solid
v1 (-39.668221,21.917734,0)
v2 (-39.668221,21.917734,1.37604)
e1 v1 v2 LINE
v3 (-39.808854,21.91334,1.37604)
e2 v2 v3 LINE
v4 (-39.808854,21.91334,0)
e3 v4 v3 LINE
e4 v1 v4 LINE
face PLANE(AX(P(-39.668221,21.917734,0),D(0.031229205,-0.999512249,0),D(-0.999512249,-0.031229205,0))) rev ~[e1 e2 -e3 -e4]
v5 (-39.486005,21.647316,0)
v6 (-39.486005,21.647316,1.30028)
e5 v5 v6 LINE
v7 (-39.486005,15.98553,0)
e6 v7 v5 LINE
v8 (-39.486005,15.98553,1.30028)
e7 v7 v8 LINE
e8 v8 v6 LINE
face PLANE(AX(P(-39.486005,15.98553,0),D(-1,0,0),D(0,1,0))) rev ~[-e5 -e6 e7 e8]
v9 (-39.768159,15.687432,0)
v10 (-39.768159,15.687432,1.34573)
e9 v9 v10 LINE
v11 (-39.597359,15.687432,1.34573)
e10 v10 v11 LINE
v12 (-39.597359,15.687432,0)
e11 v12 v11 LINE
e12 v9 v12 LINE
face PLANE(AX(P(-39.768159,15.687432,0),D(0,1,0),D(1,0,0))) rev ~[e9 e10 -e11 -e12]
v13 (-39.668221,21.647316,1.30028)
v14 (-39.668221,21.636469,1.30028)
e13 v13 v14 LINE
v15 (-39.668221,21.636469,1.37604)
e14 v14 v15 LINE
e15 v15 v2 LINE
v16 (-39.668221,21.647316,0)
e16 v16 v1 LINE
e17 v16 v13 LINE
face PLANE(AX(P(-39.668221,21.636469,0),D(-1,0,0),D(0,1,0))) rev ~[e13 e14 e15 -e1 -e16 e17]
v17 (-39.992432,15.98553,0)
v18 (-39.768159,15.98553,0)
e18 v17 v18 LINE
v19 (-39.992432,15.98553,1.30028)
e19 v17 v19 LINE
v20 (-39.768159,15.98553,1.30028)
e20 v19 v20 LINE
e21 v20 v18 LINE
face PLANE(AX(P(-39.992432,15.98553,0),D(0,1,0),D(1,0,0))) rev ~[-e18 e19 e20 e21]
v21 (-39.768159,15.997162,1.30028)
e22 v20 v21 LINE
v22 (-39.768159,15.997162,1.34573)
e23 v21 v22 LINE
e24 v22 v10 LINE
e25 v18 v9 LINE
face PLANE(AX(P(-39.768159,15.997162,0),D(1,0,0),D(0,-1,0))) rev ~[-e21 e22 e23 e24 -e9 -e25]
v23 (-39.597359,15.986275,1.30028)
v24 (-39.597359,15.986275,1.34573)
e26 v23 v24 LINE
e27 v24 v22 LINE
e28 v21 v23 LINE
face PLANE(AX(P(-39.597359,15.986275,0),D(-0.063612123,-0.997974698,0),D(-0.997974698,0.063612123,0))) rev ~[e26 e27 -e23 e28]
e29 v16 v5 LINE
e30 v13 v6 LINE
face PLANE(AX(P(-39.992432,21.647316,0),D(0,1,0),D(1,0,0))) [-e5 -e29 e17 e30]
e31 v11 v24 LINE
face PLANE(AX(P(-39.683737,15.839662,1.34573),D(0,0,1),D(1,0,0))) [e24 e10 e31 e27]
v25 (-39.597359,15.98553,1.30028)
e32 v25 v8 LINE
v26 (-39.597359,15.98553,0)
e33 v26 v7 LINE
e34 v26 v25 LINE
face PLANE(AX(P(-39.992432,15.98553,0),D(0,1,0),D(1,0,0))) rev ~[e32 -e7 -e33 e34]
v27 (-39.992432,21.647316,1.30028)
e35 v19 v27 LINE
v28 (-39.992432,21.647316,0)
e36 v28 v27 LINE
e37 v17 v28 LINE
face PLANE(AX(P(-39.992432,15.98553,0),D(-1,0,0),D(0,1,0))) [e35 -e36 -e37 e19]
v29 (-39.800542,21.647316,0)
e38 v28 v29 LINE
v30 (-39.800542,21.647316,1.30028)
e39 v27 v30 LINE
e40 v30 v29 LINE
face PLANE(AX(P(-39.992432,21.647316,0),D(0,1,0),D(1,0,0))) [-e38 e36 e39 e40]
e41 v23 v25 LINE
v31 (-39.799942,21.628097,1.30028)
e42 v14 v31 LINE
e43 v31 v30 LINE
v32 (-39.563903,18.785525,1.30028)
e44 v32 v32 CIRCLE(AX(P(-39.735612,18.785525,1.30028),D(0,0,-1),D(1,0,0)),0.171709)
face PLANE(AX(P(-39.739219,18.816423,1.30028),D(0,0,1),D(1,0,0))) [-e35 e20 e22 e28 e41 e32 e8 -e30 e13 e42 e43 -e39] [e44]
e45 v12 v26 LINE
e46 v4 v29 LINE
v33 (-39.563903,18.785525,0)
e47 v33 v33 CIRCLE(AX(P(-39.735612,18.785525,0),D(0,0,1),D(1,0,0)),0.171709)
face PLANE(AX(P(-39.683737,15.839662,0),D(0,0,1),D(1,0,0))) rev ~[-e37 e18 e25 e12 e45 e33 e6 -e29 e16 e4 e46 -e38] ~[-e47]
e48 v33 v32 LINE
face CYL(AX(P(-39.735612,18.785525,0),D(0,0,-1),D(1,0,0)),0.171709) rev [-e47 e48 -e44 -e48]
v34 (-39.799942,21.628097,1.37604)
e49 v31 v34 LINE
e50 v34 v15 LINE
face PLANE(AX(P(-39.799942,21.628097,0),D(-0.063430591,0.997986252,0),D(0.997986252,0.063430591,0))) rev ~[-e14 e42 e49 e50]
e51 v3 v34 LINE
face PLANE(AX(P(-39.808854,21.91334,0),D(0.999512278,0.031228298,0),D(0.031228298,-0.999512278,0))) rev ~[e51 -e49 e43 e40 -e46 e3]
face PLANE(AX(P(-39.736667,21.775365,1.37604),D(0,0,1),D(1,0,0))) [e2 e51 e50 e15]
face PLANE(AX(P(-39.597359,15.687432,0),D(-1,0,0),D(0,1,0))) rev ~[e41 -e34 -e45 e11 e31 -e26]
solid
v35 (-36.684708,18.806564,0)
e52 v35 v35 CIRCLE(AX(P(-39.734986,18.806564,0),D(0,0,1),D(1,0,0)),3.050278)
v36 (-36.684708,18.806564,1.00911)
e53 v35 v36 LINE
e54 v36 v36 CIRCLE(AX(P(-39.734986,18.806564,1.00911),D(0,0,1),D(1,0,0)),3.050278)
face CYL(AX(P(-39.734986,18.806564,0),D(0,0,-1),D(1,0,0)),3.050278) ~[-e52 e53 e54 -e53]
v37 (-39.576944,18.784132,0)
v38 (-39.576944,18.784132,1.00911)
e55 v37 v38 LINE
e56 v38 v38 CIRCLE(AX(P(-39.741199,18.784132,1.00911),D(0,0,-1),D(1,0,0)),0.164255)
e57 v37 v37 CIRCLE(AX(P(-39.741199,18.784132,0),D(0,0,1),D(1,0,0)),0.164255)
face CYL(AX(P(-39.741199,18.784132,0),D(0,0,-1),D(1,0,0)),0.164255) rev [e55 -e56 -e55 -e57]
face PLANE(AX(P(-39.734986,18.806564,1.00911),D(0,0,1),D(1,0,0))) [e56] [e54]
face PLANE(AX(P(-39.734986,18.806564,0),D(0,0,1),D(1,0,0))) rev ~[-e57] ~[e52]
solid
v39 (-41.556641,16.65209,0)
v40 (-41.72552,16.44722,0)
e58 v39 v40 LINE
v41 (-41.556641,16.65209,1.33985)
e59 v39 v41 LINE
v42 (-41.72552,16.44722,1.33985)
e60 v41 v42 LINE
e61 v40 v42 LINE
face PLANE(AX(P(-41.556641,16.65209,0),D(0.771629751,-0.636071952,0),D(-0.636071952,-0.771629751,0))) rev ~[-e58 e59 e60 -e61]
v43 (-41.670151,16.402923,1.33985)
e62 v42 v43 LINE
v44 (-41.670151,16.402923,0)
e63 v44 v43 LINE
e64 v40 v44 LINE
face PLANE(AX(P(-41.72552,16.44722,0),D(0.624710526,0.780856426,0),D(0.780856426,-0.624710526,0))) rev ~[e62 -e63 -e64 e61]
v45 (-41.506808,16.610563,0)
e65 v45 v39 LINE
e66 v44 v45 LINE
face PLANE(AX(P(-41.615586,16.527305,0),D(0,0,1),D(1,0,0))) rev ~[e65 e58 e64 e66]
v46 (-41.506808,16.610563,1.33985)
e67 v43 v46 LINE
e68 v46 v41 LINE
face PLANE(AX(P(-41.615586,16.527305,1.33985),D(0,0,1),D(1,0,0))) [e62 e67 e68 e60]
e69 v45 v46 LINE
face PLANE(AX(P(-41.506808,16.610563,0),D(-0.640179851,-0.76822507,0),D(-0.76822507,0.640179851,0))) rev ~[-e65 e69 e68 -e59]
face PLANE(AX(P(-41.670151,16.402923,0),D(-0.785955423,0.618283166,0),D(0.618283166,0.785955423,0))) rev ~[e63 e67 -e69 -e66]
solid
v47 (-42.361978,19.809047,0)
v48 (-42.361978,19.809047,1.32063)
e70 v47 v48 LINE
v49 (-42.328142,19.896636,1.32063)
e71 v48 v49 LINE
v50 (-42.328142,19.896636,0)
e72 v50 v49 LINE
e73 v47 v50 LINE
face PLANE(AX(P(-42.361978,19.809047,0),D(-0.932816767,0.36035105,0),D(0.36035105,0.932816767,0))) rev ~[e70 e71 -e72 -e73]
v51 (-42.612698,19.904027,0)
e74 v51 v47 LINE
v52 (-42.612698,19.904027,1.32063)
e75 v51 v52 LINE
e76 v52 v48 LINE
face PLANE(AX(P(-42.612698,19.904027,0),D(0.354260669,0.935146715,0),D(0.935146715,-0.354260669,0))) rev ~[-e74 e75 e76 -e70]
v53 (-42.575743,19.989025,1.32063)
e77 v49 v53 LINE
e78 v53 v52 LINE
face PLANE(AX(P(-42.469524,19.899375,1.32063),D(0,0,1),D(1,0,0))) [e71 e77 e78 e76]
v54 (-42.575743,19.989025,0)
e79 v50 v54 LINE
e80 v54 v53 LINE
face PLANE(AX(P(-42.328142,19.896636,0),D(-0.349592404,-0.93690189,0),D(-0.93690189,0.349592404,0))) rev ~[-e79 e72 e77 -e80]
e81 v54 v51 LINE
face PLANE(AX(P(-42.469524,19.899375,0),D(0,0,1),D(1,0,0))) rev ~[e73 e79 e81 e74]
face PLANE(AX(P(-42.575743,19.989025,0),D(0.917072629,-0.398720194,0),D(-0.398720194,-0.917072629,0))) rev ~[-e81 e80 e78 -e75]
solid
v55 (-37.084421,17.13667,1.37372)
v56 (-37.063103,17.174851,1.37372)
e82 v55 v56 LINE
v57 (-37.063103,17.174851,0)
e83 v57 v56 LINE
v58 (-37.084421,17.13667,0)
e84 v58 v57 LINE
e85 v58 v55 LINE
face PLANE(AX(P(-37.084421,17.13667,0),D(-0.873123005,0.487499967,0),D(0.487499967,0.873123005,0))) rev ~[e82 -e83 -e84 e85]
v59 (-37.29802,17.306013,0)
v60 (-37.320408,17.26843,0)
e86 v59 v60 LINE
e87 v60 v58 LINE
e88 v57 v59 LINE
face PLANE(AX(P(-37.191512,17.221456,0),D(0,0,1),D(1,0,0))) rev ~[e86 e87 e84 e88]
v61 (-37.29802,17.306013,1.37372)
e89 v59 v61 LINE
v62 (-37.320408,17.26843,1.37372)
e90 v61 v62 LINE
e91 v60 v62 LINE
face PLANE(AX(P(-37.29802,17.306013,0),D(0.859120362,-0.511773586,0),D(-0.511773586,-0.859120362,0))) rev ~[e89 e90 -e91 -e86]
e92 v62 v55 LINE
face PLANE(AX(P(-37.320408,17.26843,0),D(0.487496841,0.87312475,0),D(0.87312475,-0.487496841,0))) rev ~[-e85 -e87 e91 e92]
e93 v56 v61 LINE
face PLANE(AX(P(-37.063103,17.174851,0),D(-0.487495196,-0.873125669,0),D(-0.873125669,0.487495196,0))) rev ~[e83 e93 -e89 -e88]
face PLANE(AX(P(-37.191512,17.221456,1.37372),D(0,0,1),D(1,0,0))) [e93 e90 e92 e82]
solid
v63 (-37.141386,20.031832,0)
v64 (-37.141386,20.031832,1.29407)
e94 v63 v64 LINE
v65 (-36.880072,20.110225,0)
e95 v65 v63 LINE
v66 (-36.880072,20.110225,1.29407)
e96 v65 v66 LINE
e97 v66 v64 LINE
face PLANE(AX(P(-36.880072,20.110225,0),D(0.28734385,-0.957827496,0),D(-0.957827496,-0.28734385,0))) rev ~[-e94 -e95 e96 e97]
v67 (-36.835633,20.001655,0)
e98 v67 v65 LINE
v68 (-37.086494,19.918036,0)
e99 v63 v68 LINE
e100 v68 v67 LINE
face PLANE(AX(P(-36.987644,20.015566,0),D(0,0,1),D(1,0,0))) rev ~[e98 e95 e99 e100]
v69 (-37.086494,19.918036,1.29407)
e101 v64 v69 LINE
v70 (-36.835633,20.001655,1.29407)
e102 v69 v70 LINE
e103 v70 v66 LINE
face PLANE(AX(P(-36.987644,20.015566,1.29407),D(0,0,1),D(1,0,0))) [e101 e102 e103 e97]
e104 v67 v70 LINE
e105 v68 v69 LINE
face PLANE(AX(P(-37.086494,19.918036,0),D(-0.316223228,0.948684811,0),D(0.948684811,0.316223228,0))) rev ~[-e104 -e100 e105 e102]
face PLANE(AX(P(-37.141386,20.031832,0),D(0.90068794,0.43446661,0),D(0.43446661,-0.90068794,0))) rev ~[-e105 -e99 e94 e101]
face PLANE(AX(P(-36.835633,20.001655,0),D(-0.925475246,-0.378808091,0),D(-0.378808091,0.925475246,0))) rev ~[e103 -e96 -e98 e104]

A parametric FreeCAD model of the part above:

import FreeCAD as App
import Part
import Sketcher
from FreeCAD import Vector
Q = App.Units.Quantity

doc = App.newDocument("Part")
body = doc.addObject("PartDesign::Body", "Body")

sketch1 = body.newObject("Sketcher::SketchObject", "Sketch")
sketch1.AttachmentSupport = (doc.getObject("XY_Plane"), [""])
sketch1.MapMode = "FlatFace"
sketch1.addGeometry([
    Part.LineSegment(Vector(-40, 21.6, 0), Vector(-40, 16, 0)),
    Part.LineSegment(Vector(-40, 16, 0), Vector(-39.5, 16, 0)),
    Part.LineSegment(Vector(-39.5, 16, 0), Vector(-39.5, 21.6, 0)),
    Part.LineSegment(Vector(-39.5, 21.6, 0), Vector(-40, 21.6, 0)),
], False)
sketch1.addConstraint([
    Sketcher.Constraint("Coincident", 0, 2, 1, 1),
    Sketcher.Constraint("Coincident", 1, 2, 2, 1),
    Sketcher.Constraint("Coincident", 2, 2, 3, 1),
    Sketcher.Constraint("Coincident", 3, 2, 0, 1),
    Sketcher.Constraint("Vertical", 0),
    Sketcher.Constraint("Horizontal", 1),
    Sketcher.Constraint("Vertical", 2),
    Sketcher.Constraint("Horizontal", 3),
    Sketcher.Constraint("DistanceX", 1, 1, 1, 2, Q("0.506427 mm")),
    Sketcher.Constraint("DistanceY", 0, 2, 0, 1, Q("5.661787 mm")),
    Sketcher.Constraint("DistanceY", -1, 1, 0, 2, Q("15.98553 mm")),
    Sketcher.Constraint("DistanceX", 0, 2, -1, 1, Q("39.992432 mm")),
])
pad1 = body.newObject("PartDesign::Pad", "Pad")
pad1.Profile = sketch1
pad1.Length = 1.30028

sketch2 = body.newObject("Sketcher::SketchObject", "Sketch001")
sketch2.AttachmentSupport = (doc.getObject("XY_Plane"), [""])
sketch2.MapMode = "FlatFace"
sketch2.addGeometry([
    Part.LineSegment(Vector(-39.6, 15.69, 0), Vector(-39.6, 15.99, 0)),
    Part.LineSegment(Vector(-39.6, 15.99, 0), Vector(-39.77, 16, 0)),
    Part.LineSegment(Vector(-39.77, 16, 0), Vector(-39.77, 15.69, 0)),
    Part.LineSegment(Vector(-39.77, 15.69, 0), Vector(-39.6, 15.69, 0)),
], False)
sketch2.addConstraint([
    Sketcher.Constraint("Coincident", 0, 2, 1, 1),
    Sketcher.Constraint("Coincident", 1, 2, 2, 1),
    Sketcher.Constraint("Coincident", 2, 2, 3, 1),
    Sketcher.Constraint("Coincident", 3, 2, 0, 1),
    Sketcher.Constraint("Vertical", 0),
    Sketcher.Constraint("Vertical", 2),
    Sketcher.Constraint("Horizontal", 3),
    Sketcher.Constraint("DistanceX", 3, 1, 3, 2, Q("0.1708 mm")),
    Sketcher.Constraint("DistanceY", 2, 2, 2, 1, Q("0.30973 mm")),
    Sketcher.Constraint("DistanceY", 0, 1, 0, 2, Q("0.298843 mm")),
    Sketcher.Constraint("DistanceX", 0, 2, -1, 1, Q("39.597359 mm")),
    Sketcher.Constraint("DistanceY", -1, 1, 2, 2, Q("15.687432 mm")),
])
pad2 = body.newObject("PartDesign::Pad", "Pad001")
pad2.Profile = sketch2
pad2.Length = 1.34573

sketch3 = body.newObject("Sketcher::SketchObject", "Sketch002")
sketch3.AttachmentSupport = (doc.getObject("XY_Plane"), [""])
sketch3.MapMode = "FlatFace"
sketch3.addGeometry([
    Part.LineSegment(Vector(-39.8, 21.63, 0), Vector(-39.67, 21.64, 0)),
    Part.LineSegment(Vector(-39.67, 21.64, 0), Vector(-39.67, 21.92, 0)),
    Part.LineSegment(Vector(-39.67, 21.92, 0), Vector(-39.81, 21.91, 0)),
    Part.LineSegment(Vector(-39.81, 21.91, 0), Vector(-39.8, 21.63, 0)),
], False)
sketch3.addConstraint([
    Sketcher.Constraint("Coincident", 0, 2, 1, 1),
    Sketcher.Constraint("Coincident", 1, 2, 2, 1),
    Sketcher.Constraint("Coincident", 2, 2, 3, 1),
    Sketcher.Constraint("Coincident", 3, 2, 0, 1),
    Sketcher.Constraint("Vertical", 1),
    Sketcher.Constraint("Perpendicular", 2, 3),
    Sketcher.Constraint("DistanceY", -1, 1, 3, 2, Q("0.8514999 in")),
    Sketcher.Constraint("Distance", 2, Q("0.140702 mm")),
    Sketcher.Constraint("DistanceY", 1, 1, 1, 2, Q("0.281265 mm")),
    Sketcher.Constraint("DistanceX", 0, 2, -1, 1, Q("39.668221 mm")),
    Sketcher.Constraint("DistanceY", -1, 1, 0, 2, Q("21.636469 mm")),
    Sketcher.Constraint("DistanceY", -1, 1, 2, 2, Q("21.91334 mm")),
])
pad3 = body.newObject("PartDesign::Pad", "Pad002")
pad3.Profile = sketch3
pad3.Length = 1.37604

sketch4 = body.newObject("Sketcher::SketchObject", "Sketch003")
sketch4.AttachmentSupport = (doc.getObject("XY_Plane"), [""])
sketch4.MapMode = "FlatFace"
sketch4.addGeometry(Part.Circle(Vector(-39.74, 18.79, 0), Vector(0, 0, 1), 0.17), False)
sketch4.addConstraint([
    Sketcher.Constraint("Diameter", 0, Q("0.343418 mm")),
    Sketcher.Constraint("DistanceX", 0, 3, -1, 1, Q("39.735612 mm")),
    Sketcher.Constraint("DistanceY", -1, 1, 0, 3, Q("18.785525 mm")),
])
pocket1 = body.newObject("PartDesign::Pocket", "Pocket")
pocket1.Profile = sketch4
pocket1.Length = Q("1 in")
pocket1.Reversed = True
body2 = doc.addObject("PartDesign::Body", "Body001")

sketch5 = body2.newObject("Sketcher::SketchObject", "Sketch004")
sketch5.AttachmentSupport = (doc.getObject("XY_Plane001"), [""])
sketch5.MapMode = "FlatFace"
sketch5.addGeometry([
    Part.LineSegment(Vector(-42.61, 19.9, 0), Vector(-42.36, 19.81, 0)),
    Part.LineSegment(Vector(-42.36, 19.81, 0), Vector(-42.33, 19.9, 0)),
    Part.LineSegment(Vector(-42.33, 19.9, 0), Vector(-42.58, 19.99, 0)),
    Part.LineSegment(Vector(-42.58, 19.99, 0), Vector(-42.61, 19.9, 0)),
], False)
sketch5.addConstraint([
    Sketcher.Constraint("Coincident", 0, 2, 1, 1),
    Sketcher.Constraint("Coincident", 1, 2, 2, 1),
    Sketcher.Constraint("Coincident", 2, 2, 3, 1),
    Sketcher.Constraint("Coincident", 3, 2, 0, 1),
    Sketcher.Constraint("DistanceX", 3, 2, -1, 1, Q("42.612698 mm")),
    Sketcher.Constraint("DistanceX", 2, 2, 1, 2, Q("0.247601 mm")),
    Sketcher.Constraint("DistanceY", 3, 2, 2, 2, Q("0.084998 mm")),
    Sketcher.Constraint("DistanceY", 0, 2, 1, 2, Q("0.087589 mm")),
    Sketcher.Constraint("DistanceY", 1, 2, 2, 2, Q("0.092389 mm")),
    Sketcher.Constraint("DistanceX", 3, 2, 0, 2, Q("0.25072 mm")),
    Sketcher.Constraint("Distance", 1, Q("0.093897 mm")),
    Sketcher.Constraint("DistanceY", -1, 1, 0, 2, Q("19.809047 mm")),
])
pad4 = body2.newObject("PartDesign::Pad", "Pad003")
pad4.Profile = sketch5
pad4.Length = 1.32063
body3 = doc.addObject("PartDesign::Body", "Body002")

sketch6 = body3.newObject("Sketcher::SketchObject", "Sketch005")
sketch6.AttachmentSupport = (doc.getObject("XY_Plane002"), [""])
sketch6.MapMode = "FlatFace"
sketch6.addGeometry([
    Part.LineSegment(Vector(-37.14, 20.03, 0), Vector(-37.09, 19.92, 0)),
    Part.LineSegment(Vector(-37.09, 19.92, 0), Vector(-36.84, 20, 0)),
    Part.LineSegment(Vector(-36.84, 20, 0), Vector(-36.88, 20.11, 0)),
    Part.LineSegment(Vector(-36.88, 20.11, 0), Vector(-37.14, 20.03, 0)),
], False)
sketch6.addConstraint([
    Sketcher.Constraint("Coincident", 0, 2, 1, 1),
    Sketcher.Constraint("Coincident", 1, 2, 2, 1),
    Sketcher.Constraint("Coincident", 2, 2, 3, 1),
    Sketcher.Constraint("Coincident", 3, 2, 0, 1),
    Sketcher.Constraint("Distance", 1, Q("0.26443 mm")),
    Sketcher.Constraint("Distance", 3, Q("0.272819 mm")),
    Sketcher.Constraint("DistanceX", 2, 2, -1, 1, Q("36.880072 mm")),
    Sketcher.Constraint("DistanceX", 0, 2, 1, 2, Q("0.250861 mm")),
    Sketcher.Constraint("DistanceX", 2, 2, 1, 2, Q("0.044439 mm")),
    Sketcher.Constraint("DistanceY", 1, 2, 2, 2, Q("0.10857 mm")),
    Sketcher.Constraint("DistanceX", 3, 2, 0, 2, Q("0.054892 mm")),
    Sketcher.Constraint("DistanceY", -1, 1, 0, 2, Q("19.918036 mm")),
])
pad5 = body3.newObject("PartDesign::Pad", "Pad004")
pad5.Profile = sketch6
pad5.Length = 1.29407
body4 = doc.addObject("PartDesign::Body", "Body003")

sketch7 = body4.newObject("Sketcher::SketchObject", "Sketch006")
sketch7.AttachmentSupport = (doc.getObject("XY_Plane003"), [""])
sketch7.MapMode = "FlatFace"
sketch7.addGeometry([
    Part.LineSegment(Vector(-41.73, 16.45, 0), Vector(-41.67, 16.4, 0)),
    Part.LineSegment(Vector(-41.67, 16.4, 0), Vector(-41.51, 16.61, 0)),
    Part.LineSegment(Vector(-41.51, 16.61, 0), Vector(-41.56, 16.65, 0)),
    Part.LineSegment(Vector(-41.56, 16.65, 0), Vector(-41.73, 16.45, 0)),
], False)
sketch7.addConstraint([
    Sketcher.Constraint("Coincident", 0, 2, 1, 1),
    Sketcher.Constraint("Coincident", 1, 2, 2, 1),
    Sketcher.Constraint("Coincident", 2, 2, 3, 1),
    Sketcher.Constraint("Coincident", 3, 2, 0, 1),
    Sketcher.Constraint("Distance", 0, Q("0.070908 mm")),
    Sketcher.Constraint("Distance", 1, Q("0.264188 mm")),
    Sketcher.Constraint("DistanceX", 0, 2, -1, 1, Q("41.670151 mm")),
    Sketcher.Constraint("DistanceX", 2, 2, -1, 1, Q("41.556641 mm")),
    Sketcher.Constraint("DistanceY", -1, 1, 2, 2, Q("16.65209 mm")),
    Sketcher.Constraint("DistanceX", 3, 2, -1, 1, Q("41.72552 mm")),
    Sketcher.Constraint("DistanceY", -1, 1, 3, 2, Q("16.44722 mm")),
    Sketcher.Constraint("DistanceY", 0, 2, 1, 2, Q("0.20764 mm")),
])
pad6 = body4.newObject("PartDesign::Pad", "Pad005")
pad6.Profile = sketch7
pad6.Length = 1.33985
body5 = doc.addObject("PartDesign::Body", "Body004")

sketch8 = body5.newObject("Sketcher::SketchObject", "Sketch007")
sketch8.AttachmentSupport = (doc.getObject("XY_Plane004"), [""])
sketch8.MapMode = "FlatFace"
sketch8.addGeometry([
    Part.LineSegment(Vector(-37.063, 17.175, 0), Vector(-37.298, 17.306, 0)),
    Part.LineSegment(Vector(-37.298, 17.306, 0), Vector(-37.32, 17.268, 0)),
    Part.LineSegment(Vector(-37.32, 17.268, 0), Vector(-37.084, 17.137, 0)),
    Part.LineSegment(Vector(-37.084, 17.137, 0), Vector(-37.063, 17.175, 0)),
], False)
sketch8.addConstraint([
    Sketcher.Constraint("Coincident", 0, 2, 1, 1),
    Sketcher.Constraint("Coincident", 1, 2, 2, 1),
    Sketcher.Constraint("Coincident", 2, 2, 3, 1),
    Sketcher.Constraint("Coincident", 3, 2, 0, 1),
    Sketcher.Constraint("Parallel", 0, 2),
    Sketcher.Constraint("DistanceX", 0, 2, 2, 2, Q("0.213599 mm")),
    Sketcher.Constraint("Distance", 2, Q("0.270279 mm")),
    Sketcher.Constraint("Distance", 3, Q("0.043729 mm")),
    Sketcher.Constraint("DistanceX", 0, 2, -1, 1, Q("37.29802 mm")),
    Sketcher.Constraint("DistanceY", -1, 1, 1, 2, Q("17.26843 mm")),
    Sketcher.Constraint("DistanceY", -1, 1, 2, 2, Q("17.13667 mm")),
    Sketcher.Constraint("DistanceY", -1, 1, 3, 2, Q("17.174851 mm")),
])
pad7 = body5.newObject("PartDesign::Pad", "Pad006")
pad7.Profile = sketch8
pad7.Length = 1.37372
body6 = doc.addObject("PartDesign::Body", "Body005")

sketch9 = body6.newObject("Sketcher::SketchObject", "Sketch008")
sketch9.AttachmentSupport = (doc.getObject("XY_Plane005"), [""])
sketch9.MapMode = "FlatFace"
sketch9.addGeometry(Part.Circle(Vector(-39.7, 18.8, 0), Vector(0, 0, 1), 3.1), False)
sketch9.addConstraint([
    Sketcher.Constraint("Diameter", 0, Q("6.100556 mm")),
    Sketcher.Constraint("DistanceX", 0, 3, -1, 1, Q("39.734986 mm")),
    Sketcher.Constraint("DistanceY", -1, 1, 0, 3, Q("18.806564 mm")),
])
pad8 = body6.newObject("PartDesign::Pad", "Pad007")
pad8.Profile = sketch9
pad8.Length = 1.00911

sketch10 = body6.newObject("Sketcher::SketchObject", "Sketch009")
sketch10.AttachmentSupport = (doc.getObject("XY_Plane005"), [""])
sketch10.MapMode = "FlatFace"
sketch10.addGeometry(Part.Circle(Vector(-39.74, 18.78, 0), Vector(0, 0, 1), 0.16), False)
sketch10.addConstraint([
    Sketcher.Constraint("Diameter", 0, Q("0.32851 mm")),
    Sketcher.Constraint("DistanceX", 0, 3, -1, 1, Q("39.741199 mm")),
    Sketcher.Constraint("DistanceY", -1, 1, 0, 3, Q("18.784132 mm")),
])
pocket2 = body6.newObject("PartDesign::Pocket", "Pocket001")
pocket2.Profile = sketch10
pocket2.Length = Q("1 in")
pocket2.Reversed = True

doc.recompute()
